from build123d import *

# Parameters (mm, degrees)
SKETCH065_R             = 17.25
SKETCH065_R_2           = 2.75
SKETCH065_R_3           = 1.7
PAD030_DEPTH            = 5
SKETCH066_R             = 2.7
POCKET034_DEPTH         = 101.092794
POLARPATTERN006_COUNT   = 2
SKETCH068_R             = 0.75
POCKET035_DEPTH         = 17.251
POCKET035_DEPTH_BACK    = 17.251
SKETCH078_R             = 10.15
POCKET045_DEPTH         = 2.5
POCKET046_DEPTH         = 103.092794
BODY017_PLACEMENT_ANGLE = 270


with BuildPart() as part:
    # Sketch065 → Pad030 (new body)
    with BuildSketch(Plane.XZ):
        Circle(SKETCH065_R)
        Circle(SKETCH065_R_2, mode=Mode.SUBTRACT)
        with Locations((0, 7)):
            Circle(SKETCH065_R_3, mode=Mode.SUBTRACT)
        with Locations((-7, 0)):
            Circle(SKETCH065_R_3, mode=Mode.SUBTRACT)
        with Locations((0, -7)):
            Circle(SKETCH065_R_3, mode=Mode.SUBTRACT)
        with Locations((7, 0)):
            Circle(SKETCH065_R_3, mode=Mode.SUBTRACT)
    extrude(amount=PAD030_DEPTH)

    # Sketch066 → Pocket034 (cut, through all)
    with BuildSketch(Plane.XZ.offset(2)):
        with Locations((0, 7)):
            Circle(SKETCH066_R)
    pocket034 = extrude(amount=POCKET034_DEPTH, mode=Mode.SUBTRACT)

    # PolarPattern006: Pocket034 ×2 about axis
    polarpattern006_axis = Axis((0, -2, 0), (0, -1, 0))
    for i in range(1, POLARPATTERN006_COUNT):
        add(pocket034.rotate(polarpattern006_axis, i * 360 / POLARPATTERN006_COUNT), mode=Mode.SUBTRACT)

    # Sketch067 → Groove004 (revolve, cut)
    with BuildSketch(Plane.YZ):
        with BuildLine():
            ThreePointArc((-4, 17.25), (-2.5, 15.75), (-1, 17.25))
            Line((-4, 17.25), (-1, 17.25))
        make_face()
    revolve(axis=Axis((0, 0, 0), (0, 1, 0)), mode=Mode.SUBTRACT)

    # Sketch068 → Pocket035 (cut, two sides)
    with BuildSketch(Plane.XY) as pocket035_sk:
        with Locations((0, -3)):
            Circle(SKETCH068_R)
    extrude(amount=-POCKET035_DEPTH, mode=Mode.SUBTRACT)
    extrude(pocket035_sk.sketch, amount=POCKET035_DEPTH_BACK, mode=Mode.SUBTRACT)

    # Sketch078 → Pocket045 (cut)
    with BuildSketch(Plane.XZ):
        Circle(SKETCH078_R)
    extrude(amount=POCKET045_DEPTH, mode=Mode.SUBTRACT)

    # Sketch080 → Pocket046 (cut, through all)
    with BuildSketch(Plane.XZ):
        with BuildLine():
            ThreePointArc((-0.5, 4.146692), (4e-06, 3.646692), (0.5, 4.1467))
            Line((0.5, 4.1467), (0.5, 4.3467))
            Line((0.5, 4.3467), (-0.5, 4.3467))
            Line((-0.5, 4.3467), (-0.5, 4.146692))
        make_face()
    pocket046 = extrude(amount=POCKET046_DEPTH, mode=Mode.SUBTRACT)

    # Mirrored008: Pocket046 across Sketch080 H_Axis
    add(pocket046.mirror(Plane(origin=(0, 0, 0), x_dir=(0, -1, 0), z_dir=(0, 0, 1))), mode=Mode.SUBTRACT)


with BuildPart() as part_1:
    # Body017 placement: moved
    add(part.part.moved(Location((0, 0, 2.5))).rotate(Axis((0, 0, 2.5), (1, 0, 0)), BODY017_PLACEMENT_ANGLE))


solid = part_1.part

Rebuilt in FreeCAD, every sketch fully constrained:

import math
import FreeCAD as App
import Part
import Sketcher
Q = App.Units.Quantity

doc = App.newDocument("Part")
body = doc.addObject("PartDesign::Body", "Body")

# Sketch on XZ plane
sketch1 = body.newObject("Sketcher::SketchObject", "Sketch")
sketch1.AttachmentSupport = (doc.getObject("XZ_Plane"), [""])
sketch1.MapMode = "FlatFace"
sketch1.addGeometry(Part.Circle(App.Vector(0, 0, 0), App.Vector(0, 0, 1), 17.2), False)
sketch1.addGeometry(Part.Circle(App.Vector(0, -7, 0), App.Vector(0, 0, 1), 1.7), False)
sketch1.addGeometry(Part.Circle(App.Vector(-7, 0, 0), App.Vector(0, 0, 1), 1.7), False)
sketch1.addGeometry(Part.Circle(App.Vector(0, 0, 0), App.Vector(0, 0, 1), 2.8), False)
sketch1.addGeometry(Part.Circle(App.Vector(7, 0, 0), App.Vector(0, 0, 1), 1.7), False)
sketch1.addGeometry(Part.Circle(App.Vector(0, 7, 0), App.Vector(0, 0, 1), 1.7), False)
sketch1.addConstraint(Sketcher.Constraint("Coincident", 0, 3, -1, 1))
sketch1.addConstraint(Sketcher.Constraint("Coincident", 3, 3, -1, 1))
sketch1.addConstraint(Sketcher.Constraint("Equal", 1, 2))
sketch1.addConstraint(Sketcher.Constraint("Equal", 2, 4))
sketch1.addConstraint(Sketcher.Constraint("Equal", 4, 5))
sketch1.addConstraint(Sketcher.Constraint("Symmetric", 2, 3, 4, 3, -1, 1))
sketch1.addConstraint(Sketcher.Constraint("Symmetric", 1, 3, 5, 3, -1, 1))
sketch1.addConstraint(Sketcher.Constraint("PointOnObject", 1, 3, -2))
sketch1.addConstraint(Sketcher.Constraint("PointOnObject", 2, 3, -1))
sketch1.addConstraint(Sketcher.Constraint("Diameter", 0, Q("34.5 mm")))
sketch1.addConstraint(Sketcher.Constraint("Diameter", 1, Q("3.4 mm")))
sketch1.addConstraint(Sketcher.Constraint("Diameter", 3, Q("5.5 mm")))
sketch1.addConstraint(Sketcher.Constraint("DistanceY", 1, 3, -1, 1, Q("7 mm")))
sketch1.addConstraint(Sketcher.Constraint("DistanceX", 2, 3, -1, 1, Q("7 mm")))
pad1 = body.newObject("PartDesign::Pad", "Pad")
pad1.Profile = sketch1
pad1.Length = 5

# Sketch on XZ plane
sketch2 = body.newObject("Sketcher::SketchObject", "Sketch001")
sketch2.AttachmentSupport = (doc.getObject("XZ_Plane"), [""])
sketch2.MapMode = "FlatFace"
sketch2.AttachmentOffset = App.Placement(App.Vector(0, 0, 2), App.Rotation())
sketch2.addGeometry(Part.Circle(App.Vector(0, 7, 0), App.Vector(0, 0, 1), 2.7), False)
sketch2.addConstraint(Sketcher.Constraint("PointOnObject", 0, 3, -2))
sketch2.addConstraint(Sketcher.Constraint("Diameter", 0, Q("5.4 mm")))
sketch2.addConstraint(Sketcher.Constraint("DistanceY", -1, 1, 0, 3, Q("7 mm")))
pocket1 = body.newObject("PartDesign::Pocket", "Pocket")
pocket1.Profile = sketch2
pocket1.Type = "ThroughAll"
pocket1.Reversed = True
doc.recompute()

polarpattern = body.newObject("PartDesign::PolarPattern", "PolarPattern")
polarpattern.Originals = [pocket1]
polarpattern.Axis = (doc.getObject("Y_Axis"), [""])
polarpattern.Angle = 360
polarpattern.Occurrences = 2
body.Tip = polarpattern

# Sketch on YZ plane
sketch3 = body.newObject("Sketcher::SketchObject", "Sketch002")
sketch3.AttachmentSupport = (doc.getObject("YZ_Plane"), [""])
sketch3.MapMode = "FlatFace"
sketch3.addGeometry(Part.ArcOfCircle(Part.Circle(App.Vector(-2.5, 17.2, 0), App.Vector(0, 0, 1), 1.5), math.radians(180), math.radians(360)), False)
sketch3.addGeometry(Part.LineSegment(App.Vector(-1, 17.2, 0), App.Vector(-4, 17.2, 0)), False)
sketch3.addConstraint(Sketcher.Constraint("Coincident", 0, 1, 1, 2))
sketch3.addConstraint(Sketcher.Constraint("Coincident", 1, 1, 0, 2))
sketch3.addConstraint(Sketcher.Constraint("Horizontal", 1))
sketch3.addConstraint(Sketcher.Constraint("Radius", 0, Q("1.5 mm")))
sketch3.addConstraint(Sketcher.Constraint("DistanceX", 0, 1, -1, 1, Q("4 mm")))
sketch3.addConstraint(Sketcher.Constraint("DistanceY", -1, 1, 0, 3, Q("17.25 mm")))
sketch3.addConstraint(Sketcher.Constraint("DistanceY", -1, 1, 0, 1, Q("17.25 mm")))
groove = body.newObject("PartDesign::Groove", "Groove")
groove.Profile = sketch3
groove.ReferenceAxis = (sketch3, ["H_Axis"])
groove.Angle = 360

# Sketch on XY plane
sketch4 = body.newObject("Sketcher::SketchObject", "Sketch003")
sketch4.AttachmentSupport = (doc.getObject("XY_Plane"), [""])
sketch4.MapMode = "FlatFace"
sketch4.addGeometry(Part.Circle(App.Vector(0, -3, 0), App.Vector(0, 0, 1), 0.8), False)
sketch4.addConstraint(Sketcher.Constraint("PointOnObject", 0, 3, -2))
sketch4.addConstraint(Sketcher.Constraint("Diameter", 0, Q("1.5 mm")))
sketch4.addConstraint(Sketcher.Constraint("DistanceY", 0, 3, -1, 1, Q("3 mm")))
pocket2 = body.newObject("PartDesign::Pocket", "Pocket001")
pocket2.Profile = sketch4
pocket2.Type = "ThroughAll"
pocket2.Midplane = True

# Sketch on XZ plane
sketch5 = body.newObject("Sketcher::SketchObject", "Sketch004")
sketch5.AttachmentSupport = (doc.getObject("XZ_Plane"), [""])
sketch5.MapMode = "FlatFace"
sketch5.addGeometry(Part.Circle(App.Vector(0, 0, 0), App.Vector(0, 0, 1), 10), False)
sketch5.addConstraint(Sketcher.Constraint("Coincident", 0, 3, -1, 1))
sketch5.addConstraint(Sketcher.Constraint("Diameter", 0, Q("20.3 mm")))
pocket3 = body.newObject("PartDesign::Pocket", "Pocket002")
pocket3.Profile = sketch5
pocket3.Length = 2.5
pocket3.Reversed = True

# Sketch on XZ plane
sketch6 = body.newObject("Sketcher::SketchObject", "Sketch005")
sketch6.AttachmentSupport = (doc.getObject("XZ_Plane"), [""])
sketch6.MapMode = "FlatFace"
sketch6.addGeometry(Part.ArcOfCircle(Part.Circle(App.Vector(0, 4.15, 0), App.Vector(0, 0, 1), 0.5), math.radians(180), math.radians(360)), False)
sketch6.addGeometry(Part.LineSegment(App.Vector(0.5, 4.15, 0), App.Vector(0.5, 4.35, 0)), False)
sketch6.addGeometry(Part.LineSegment(App.Vector(0.5, 4.35, 0), App.Vector(-0.5, 4.35, 0)), False)
sketch6.addGeometry(Part.LineSegment(App.Vector(-0.5, 4.35, 0), App.Vector(-0.5, 4.15, 0)), False)
sketch6.addConstraint(Sketcher.Constraint("Coincident", 0, 2, 1, 1))
sketch6.addConstraint(Sketcher.Constraint("Coincident", 1, 2, 2, 1))
sketch6.addConstraint(Sketcher.Constraint("Coincident", 2, 2, 3, 1))
sketch6.addConstraint(Sketcher.Constraint("Tangent", 3, 2, 0, 1))
sketch6.addConstraint(Sketcher.Constraint("Vertical", 1))
sketch6.addConstraint(Sketcher.Constraint("Horizontal", 2))
sketch6.addConstraint(Sketcher.Constraint("Vertical", 3))
sketch6.addConstraint(Sketcher.Constraint("Symmetric", 0, 2, 3, 2, -2))
sketch6.addConstraint(Sketcher.Constraint("Radius", 0, Q("0.5 mm")))
sketch6.addConstraint(Sketcher.Constraint("DistanceY", 1, 1, 1, 2, Q("0.2 mm")))
sketch6.addConstraint(Sketcher.Constraint("DistanceY", -1, 1, 0, 2, Q("4.1467 mm")))
pocket4 = body.newObject("PartDesign::Pocket", "Pocket003")
pocket4.Profile = sketch6
pocket4.Type = "ThroughAll"
pocket4.Reversed = True
doc.recompute()

mirrored = body.newObject("PartDesign::Mirrored", "Mirrored")
mirrored.Originals = [pocket4]
mirrored.MirrorPlane = (doc.getObject("XY_Plane"), [""])
body.Tip = mirrored
body2 = doc.addObject("PartDesign::Body", "Body001")
doc.recompute()

body.Placement = App.Placement(App.Vector(0, 0, 2.5), App.Rotation(App.Vector(1, 0, 0), 270))
boolean = body2.newObject("PartDesign::Boolean", "Boolean")
boolean.Type = "Fuse"
boolean.addObjects([body])

doc.recompute()
